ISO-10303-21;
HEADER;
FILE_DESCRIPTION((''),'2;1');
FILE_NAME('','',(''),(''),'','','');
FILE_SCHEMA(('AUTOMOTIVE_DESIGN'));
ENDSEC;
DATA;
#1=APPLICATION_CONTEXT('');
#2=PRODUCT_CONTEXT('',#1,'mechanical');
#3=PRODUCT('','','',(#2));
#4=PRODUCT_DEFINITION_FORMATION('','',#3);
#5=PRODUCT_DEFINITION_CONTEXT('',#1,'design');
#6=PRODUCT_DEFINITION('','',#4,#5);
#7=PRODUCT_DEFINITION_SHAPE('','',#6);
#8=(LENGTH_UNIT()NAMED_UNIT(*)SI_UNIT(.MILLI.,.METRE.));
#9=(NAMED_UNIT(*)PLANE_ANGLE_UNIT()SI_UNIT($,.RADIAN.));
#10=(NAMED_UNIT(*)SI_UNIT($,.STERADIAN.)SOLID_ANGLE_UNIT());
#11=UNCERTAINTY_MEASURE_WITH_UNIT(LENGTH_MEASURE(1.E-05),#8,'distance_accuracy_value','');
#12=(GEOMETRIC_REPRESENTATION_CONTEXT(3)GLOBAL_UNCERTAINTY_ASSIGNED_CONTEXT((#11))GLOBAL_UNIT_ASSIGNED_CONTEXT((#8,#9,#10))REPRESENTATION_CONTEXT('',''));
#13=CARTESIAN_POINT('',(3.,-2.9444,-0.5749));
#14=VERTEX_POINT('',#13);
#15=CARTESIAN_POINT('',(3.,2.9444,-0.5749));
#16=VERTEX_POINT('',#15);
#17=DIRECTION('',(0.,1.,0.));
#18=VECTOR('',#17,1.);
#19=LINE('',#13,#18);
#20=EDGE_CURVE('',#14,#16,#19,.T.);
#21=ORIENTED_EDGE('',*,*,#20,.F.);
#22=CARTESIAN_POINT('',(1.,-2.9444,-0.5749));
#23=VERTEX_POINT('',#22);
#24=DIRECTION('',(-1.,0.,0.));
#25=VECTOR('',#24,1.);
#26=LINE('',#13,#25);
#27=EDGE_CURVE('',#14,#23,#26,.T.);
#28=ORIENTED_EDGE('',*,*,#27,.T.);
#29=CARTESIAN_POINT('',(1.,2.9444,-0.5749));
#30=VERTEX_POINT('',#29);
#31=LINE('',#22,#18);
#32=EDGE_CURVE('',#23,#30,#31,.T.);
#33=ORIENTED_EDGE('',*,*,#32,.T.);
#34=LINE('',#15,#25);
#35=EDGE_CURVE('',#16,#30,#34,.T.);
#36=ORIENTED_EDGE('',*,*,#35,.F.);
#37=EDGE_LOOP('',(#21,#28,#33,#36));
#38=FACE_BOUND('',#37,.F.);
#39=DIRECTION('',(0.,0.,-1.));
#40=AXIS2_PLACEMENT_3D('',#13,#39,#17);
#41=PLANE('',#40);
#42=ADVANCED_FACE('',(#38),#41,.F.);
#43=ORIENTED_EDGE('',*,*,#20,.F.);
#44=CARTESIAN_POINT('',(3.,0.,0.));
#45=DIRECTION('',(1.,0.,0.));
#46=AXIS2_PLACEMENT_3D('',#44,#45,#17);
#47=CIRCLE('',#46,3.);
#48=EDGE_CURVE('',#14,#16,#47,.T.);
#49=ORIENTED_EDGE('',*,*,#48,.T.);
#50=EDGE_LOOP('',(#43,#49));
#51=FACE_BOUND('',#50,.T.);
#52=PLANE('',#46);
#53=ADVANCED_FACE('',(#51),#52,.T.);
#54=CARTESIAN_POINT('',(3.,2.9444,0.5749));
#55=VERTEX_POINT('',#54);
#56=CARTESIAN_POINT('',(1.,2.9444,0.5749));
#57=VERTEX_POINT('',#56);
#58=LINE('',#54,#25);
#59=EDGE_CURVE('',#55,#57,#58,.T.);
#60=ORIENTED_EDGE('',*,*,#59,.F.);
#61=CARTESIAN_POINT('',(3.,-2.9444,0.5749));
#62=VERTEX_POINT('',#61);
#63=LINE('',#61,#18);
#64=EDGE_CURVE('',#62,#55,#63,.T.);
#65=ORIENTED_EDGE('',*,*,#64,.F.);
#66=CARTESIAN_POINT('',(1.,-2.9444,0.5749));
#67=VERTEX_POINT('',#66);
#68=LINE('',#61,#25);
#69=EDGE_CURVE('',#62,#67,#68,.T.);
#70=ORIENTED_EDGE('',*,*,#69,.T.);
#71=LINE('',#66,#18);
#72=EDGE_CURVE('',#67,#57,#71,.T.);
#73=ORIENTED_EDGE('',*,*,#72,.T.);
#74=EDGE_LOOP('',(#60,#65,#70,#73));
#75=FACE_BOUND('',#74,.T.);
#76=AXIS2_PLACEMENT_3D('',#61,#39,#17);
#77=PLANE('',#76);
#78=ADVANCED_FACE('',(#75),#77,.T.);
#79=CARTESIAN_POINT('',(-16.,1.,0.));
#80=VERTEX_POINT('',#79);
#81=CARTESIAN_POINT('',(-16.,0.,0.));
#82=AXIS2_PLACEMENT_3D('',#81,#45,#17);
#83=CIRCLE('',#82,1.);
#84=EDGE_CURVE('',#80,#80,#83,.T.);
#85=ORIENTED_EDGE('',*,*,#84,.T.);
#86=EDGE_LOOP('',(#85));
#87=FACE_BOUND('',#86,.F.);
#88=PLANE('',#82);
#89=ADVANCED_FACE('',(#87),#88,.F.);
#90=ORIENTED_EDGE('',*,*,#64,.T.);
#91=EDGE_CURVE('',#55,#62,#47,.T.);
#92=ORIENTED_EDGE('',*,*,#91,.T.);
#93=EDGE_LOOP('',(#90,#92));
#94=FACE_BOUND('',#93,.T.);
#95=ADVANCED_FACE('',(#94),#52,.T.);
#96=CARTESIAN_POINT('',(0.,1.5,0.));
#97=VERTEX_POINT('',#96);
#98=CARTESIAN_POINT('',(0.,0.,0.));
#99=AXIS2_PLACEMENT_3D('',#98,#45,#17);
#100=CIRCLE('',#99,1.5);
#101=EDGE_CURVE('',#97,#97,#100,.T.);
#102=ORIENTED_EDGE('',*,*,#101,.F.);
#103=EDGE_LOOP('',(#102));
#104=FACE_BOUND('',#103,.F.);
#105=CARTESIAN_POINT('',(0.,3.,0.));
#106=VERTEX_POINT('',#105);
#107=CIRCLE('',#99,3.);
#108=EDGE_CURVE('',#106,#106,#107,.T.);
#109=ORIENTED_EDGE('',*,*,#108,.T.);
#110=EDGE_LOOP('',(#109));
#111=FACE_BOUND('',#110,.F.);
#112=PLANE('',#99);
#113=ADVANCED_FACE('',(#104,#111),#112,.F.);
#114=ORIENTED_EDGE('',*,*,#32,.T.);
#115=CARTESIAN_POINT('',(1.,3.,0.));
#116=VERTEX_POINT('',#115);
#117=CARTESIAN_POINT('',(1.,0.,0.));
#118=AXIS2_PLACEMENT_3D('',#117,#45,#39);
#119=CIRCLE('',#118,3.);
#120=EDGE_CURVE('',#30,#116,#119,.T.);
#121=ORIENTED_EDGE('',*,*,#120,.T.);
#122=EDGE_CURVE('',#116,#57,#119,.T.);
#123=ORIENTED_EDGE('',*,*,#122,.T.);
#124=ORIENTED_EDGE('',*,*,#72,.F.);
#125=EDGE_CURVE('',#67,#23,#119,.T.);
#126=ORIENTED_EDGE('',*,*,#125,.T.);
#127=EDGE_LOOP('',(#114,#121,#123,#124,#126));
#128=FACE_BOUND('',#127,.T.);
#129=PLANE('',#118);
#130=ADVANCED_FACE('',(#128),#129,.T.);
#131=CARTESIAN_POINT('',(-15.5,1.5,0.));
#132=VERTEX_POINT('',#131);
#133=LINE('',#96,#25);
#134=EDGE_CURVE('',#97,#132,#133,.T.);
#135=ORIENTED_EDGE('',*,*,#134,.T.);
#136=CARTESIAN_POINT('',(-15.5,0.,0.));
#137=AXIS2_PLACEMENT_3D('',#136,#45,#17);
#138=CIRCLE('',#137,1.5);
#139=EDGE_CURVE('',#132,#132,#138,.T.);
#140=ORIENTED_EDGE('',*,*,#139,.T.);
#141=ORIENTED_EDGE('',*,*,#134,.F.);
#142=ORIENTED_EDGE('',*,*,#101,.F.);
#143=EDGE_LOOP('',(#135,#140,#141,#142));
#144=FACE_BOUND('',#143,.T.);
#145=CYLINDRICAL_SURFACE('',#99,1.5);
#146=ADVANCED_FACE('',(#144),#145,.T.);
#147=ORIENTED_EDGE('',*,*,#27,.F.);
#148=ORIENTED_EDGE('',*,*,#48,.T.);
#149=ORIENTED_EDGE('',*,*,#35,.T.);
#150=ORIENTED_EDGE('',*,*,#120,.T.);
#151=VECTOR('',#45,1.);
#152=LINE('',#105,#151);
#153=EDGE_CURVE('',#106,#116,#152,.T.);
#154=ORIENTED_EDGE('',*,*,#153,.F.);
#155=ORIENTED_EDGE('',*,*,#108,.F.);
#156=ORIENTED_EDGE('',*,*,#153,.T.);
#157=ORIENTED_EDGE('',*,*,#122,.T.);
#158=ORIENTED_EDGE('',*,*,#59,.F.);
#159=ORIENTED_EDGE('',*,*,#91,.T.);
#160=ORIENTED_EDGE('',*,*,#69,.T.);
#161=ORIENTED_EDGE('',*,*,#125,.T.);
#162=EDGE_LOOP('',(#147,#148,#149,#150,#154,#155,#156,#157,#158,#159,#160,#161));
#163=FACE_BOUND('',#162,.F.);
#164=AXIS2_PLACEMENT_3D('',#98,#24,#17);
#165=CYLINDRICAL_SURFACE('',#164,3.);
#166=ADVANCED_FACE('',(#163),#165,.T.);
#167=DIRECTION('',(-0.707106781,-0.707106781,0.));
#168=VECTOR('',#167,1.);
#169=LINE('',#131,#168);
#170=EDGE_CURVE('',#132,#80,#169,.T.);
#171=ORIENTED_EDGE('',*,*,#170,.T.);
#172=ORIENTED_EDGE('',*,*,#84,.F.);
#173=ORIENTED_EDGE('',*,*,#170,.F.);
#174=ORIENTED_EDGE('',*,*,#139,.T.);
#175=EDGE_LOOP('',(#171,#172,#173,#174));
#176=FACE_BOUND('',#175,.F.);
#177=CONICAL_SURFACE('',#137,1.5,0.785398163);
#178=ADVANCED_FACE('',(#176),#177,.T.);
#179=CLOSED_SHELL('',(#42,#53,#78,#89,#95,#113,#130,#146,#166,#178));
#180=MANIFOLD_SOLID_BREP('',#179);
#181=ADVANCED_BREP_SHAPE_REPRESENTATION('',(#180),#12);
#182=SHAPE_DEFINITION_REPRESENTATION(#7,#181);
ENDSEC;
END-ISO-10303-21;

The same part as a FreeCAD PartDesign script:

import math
import FreeCAD as App
import Part
import Sketcher
from FreeCAD import Vector
Q = App.Units.Quantity


def edges_at(feature, points):
    """Names of the edges that pass closest to the given points."""
    edges = feature.Shape.Edges
    near = lambda p: min(range(len(edges)), key=lambda i: edges[i].distToShape(Part.Vertex(*p))[0])
    return sorted({f"Edge{near(p) + 1}" for p in points})

doc = App.newDocument("Part")
params = doc.addObject("Spreadsheet::Sheet", "Params")
for row, (alias, value) in enumerate([
    ("sketch1_diameter", "3 mm"),
    ("pad1_length", "16 mm"),
    ("sketch2_diameter", "6 mm"),
    ("pad2_length", "3 mm"),
    ("sketch3_radius", "3 mm"),
    ("pocket1_length", "2 mm"),
    ("chamfer_size", "0.5 mm"),
], start=1):
    params.set(f"A{row}", alias)
    params.set(f"B{row}", "=" + value)
    params.setAlias(f"B{row}", alias)

body = doc.addObject("PartDesign::Body", "Body")

# Sketch on YZ plane
sketch1 = doc.addObject("Sketcher::SketchObject", "Sketch")
body.addObject(sketch1)
sketch1.AttachmentSupport = (doc.YZ_Plane, [""])
sketch1.MapMode = "FlatFace"
sketch1.addGeometry(Part.Circle(Vector(0, 0, 0), Vector(0, 0, 1), 1.5), False)
sketch1.addConstraint(Sketcher.Constraint("Coincident", 0, 3, -1, 1))
sketch1.addConstraint(Sketcher.Constraint("Diameter", 0, Q("3 mm")))
sketch1.setExpression("Constraints[1]", "Params.sketch1_diameter")
pad1 = doc.addObject("PartDesign::Pad", "Pad")
body.addObject(pad1)
pad1.Profile = sketch1
pad1.setExpression("Length", "Params.pad1_length")
pad1.Reversed = True

# Sketch on YZ plane
sketch2 = doc.addObject("Sketcher::SketchObject", "Sketch001")
body.addObject(sketch2)
sketch2.AttachmentSupport = (doc.YZ_Plane, [""])
sketch2.MapMode = "FlatFace"
sketch2.addGeometry(Part.Circle(Vector(0, 0, 0), Vector(0, 0, 1), 3), False)
sketch2.addConstraint(Sketcher.Constraint("Coincident", 0, 3, -1, 1))
sketch2.addConstraint(Sketcher.Constraint("Diameter", 0, Q("6 mm")))
sketch2.setExpression("Constraints[1]", "Params.sketch2_diameter")
pad2 = doc.addObject("PartDesign::Pad", "Pad001")
body.addObject(pad2)
pad2.Profile = sketch2
pad2.setExpression("Length", "Params.pad2_length")

# Sketch on YZ plane
sketch3 = doc.addObject("Sketcher::SketchObject", "Sketch002")
body.addObject(sketch3)
sketch3.AttachmentSupport = (doc.YZ_Plane, [""])
sketch3.MapMode = "FlatFace"
sketch3.AttachmentOffset = App.Placement(Vector(0, 0, 3), App.Rotation())
sketch3.addGeometry(Part.LineSegment(Vector(-2.9, -0.6, 0), Vector(2.9, -0.6, 0)), False)
sketch3.addGeometry(Part.ArcOfCircle(Part.Circle(Vector(0, 0, 0), Vector(0, 0, 1), 3), math.radians(-11), math.radians(11)), False)
sketch3.addGeometry(Part.LineSegment(Vector(2.9, 0.6, 0), Vector(-2.9, 0.6, 0)), False)
sketch3.addGeometry(Part.ArcOfCircle(Part.Circle(Vector(0, 0, 0), Vector(0, 0, 1), 3), math.radians(169), math.radians(191)), False)
sketch3.addConstraint(Sketcher.Constraint("Coincident", 0, 2, 1, 1))
sketch3.addConstraint(Sketcher.Constraint("Coincident", 1, 2, 2, 1))
sketch3.addConstraint(Sketcher.Constraint("Coincident", 2, 2, 3, 1))
sketch3.addConstraint(Sketcher.Constraint("Coincident", 3, 2, 0, 1))
sketch3.addConstraint(Sketcher.Constraint("Horizontal", 0))
sketch3.addConstraint(Sketcher.Constraint("Horizontal", 2))
sketch3.addConstraint(Sketcher.Constraint("Coincident", 1, 3, -1, 1))
sketch3.addConstraint(Sketcher.Constraint("Coincident", 3, 3, -1, 1))
sketch3.addConstraint(Sketcher.Constraint("Equal", 1, 3))
sketch3.addConstraint(Sketcher.Constraint("Vertical", 0, 2, 1, 2))
sketch3.addConstraint(Sketcher.Constraint("Radius", 1, Q("3 mm")))
sketch3.addConstraint(Sketcher.Constraint("DistanceX", 0, 1, 0, 2, Q("5.8888 mm")))
sketch3.setExpression("Constraints[10]", "Params.sketch3_radius")
pocket1 = doc.addObject("PartDesign::Pocket", "Pocket")
body.addObject(pocket1)
pocket1.Profile = sketch3
pocket1.setExpression("Length", "Params.pocket1_length")
doc.recompute()

chamfer = doc.addObject("PartDesign::Chamfer", "Chamfer")
body.addObject(chamfer)
chamfer.Base = (pocket1, edges_at(pocket1, [(-16, -1.5, 0)]))
chamfer.setExpression("Size", "Params.chamfer_size")

doc.recompute()
